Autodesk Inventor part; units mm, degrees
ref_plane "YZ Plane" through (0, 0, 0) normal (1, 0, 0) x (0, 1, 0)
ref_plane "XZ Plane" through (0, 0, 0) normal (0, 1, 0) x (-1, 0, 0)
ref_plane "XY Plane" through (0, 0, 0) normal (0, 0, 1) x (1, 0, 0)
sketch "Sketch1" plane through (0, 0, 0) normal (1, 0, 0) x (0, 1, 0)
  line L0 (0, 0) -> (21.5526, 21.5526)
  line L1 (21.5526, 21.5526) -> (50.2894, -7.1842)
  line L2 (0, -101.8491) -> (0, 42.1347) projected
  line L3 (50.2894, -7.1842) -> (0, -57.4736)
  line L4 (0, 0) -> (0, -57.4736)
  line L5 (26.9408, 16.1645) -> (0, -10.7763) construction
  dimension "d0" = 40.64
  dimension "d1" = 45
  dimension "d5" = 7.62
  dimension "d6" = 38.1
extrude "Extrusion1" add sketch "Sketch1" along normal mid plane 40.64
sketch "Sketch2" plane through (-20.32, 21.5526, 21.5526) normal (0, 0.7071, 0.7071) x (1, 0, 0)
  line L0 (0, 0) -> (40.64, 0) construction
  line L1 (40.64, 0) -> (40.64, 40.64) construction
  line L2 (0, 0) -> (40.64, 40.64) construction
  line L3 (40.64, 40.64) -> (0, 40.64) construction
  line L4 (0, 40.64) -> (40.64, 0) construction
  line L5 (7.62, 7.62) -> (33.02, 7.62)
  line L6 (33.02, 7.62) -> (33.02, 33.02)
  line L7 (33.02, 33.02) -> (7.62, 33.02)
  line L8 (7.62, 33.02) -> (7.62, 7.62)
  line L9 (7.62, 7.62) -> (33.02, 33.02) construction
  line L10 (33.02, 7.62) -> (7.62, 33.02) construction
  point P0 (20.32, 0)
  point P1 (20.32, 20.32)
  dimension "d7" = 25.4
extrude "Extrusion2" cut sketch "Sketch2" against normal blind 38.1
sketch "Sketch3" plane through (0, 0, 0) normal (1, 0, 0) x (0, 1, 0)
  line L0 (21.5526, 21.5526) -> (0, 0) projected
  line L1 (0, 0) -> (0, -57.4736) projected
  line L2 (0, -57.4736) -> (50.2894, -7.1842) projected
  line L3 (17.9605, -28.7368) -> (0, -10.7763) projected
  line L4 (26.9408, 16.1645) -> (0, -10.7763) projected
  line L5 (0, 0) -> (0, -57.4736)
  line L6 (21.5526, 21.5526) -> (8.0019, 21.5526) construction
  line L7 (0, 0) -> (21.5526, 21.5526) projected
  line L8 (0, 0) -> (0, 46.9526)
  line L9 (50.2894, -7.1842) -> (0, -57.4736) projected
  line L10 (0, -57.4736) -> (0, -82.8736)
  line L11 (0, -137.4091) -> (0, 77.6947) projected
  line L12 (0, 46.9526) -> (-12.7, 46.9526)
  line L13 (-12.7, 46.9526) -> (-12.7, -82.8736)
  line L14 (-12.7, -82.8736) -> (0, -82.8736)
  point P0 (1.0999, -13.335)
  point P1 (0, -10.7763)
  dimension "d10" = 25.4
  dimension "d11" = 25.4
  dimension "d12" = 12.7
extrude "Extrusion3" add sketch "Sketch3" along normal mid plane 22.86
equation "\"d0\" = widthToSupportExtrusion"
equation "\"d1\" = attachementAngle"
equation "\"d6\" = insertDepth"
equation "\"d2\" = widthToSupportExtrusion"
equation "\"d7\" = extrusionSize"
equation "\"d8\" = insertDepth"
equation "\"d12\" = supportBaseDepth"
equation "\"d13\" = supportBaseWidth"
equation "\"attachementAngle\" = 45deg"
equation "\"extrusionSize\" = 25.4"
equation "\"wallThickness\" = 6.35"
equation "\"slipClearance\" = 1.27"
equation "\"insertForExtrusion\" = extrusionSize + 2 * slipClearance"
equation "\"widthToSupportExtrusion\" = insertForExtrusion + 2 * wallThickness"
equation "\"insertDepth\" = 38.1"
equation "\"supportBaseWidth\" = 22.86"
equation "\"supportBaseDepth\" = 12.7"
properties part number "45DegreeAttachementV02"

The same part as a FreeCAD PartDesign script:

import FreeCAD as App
import Part
import Sketcher

V = App.Vector
Q = App.Units.Quantity

doc = App.newDocument("Part")
params = doc.addObject("Spreadsheet::Sheet", "Params")
for row, (alias, value) in enumerate([
    ("sketch1_length", "1.6 in"),
    ("sketch1_length2", "1.2 in"),
    ("pad1_length", "1.6 in"),
    ("sketch2_width", "1 in"),
    ("pocket1_length", "1.5 in"),
    ("sketch3_width", "0.5 in"),
    ("pad2_length", "0.9 in"),
], start=1):
    params.set(f"A{row}", alias)
    params.set(f"B{row}", "=" + value)
    params.setAlias(f"B{row}", alias)

body = doc.addObject("PartDesign::Body", "Body")

sketch1 = doc.addObject("Sketcher::SketchObject", "Sketch")
body.addObject(sketch1)
sketch1.AttachmentSupport = (doc.YZ_Plane, [""])
sketch1.MapMode = "FlatFace"
sketch1.addGeometry([
    Part.LineSegment(V(21.5526, 21.5526, 0), V(0, 0, 0)),
    Part.LineSegment(V(0, 0, 0), V(0, -57.4736, 0)),
    Part.LineSegment(V(0, -57.4736, 0), V(50.2894, -7.1842, 0)),
    Part.LineSegment(V(50.2894, -7.1842, 0), V(21.5526, 21.5526, 0)),
], False)
sketch1.addConstraint([
    Sketcher.Constraint("Coincident", 0, 2, 1, 1),
    Sketcher.Constraint("Coincident", 1, 2, 2, 1),
    Sketcher.Constraint("Coincident", 2, 2, 3, 1),
    Sketcher.Constraint("Coincident", 3, 2, 0, 1),
    Sketcher.Constraint("Vertical", 1),
    Sketcher.Constraint("Coincident", 0, 2, -1, 1),
    Sketcher.Constraint("Parallel", 0, 2),
    Sketcher.Constraint("Perpendicular", 2, 3),
    Sketcher.Constraint("Angle", 2, Q("45 deg")),
    Sketcher.Constraint("Distance", 3, Q("1.6 in")),
    Sketcher.Constraint("Distance", 0, Q("1.2 in")),
])
sketch1.setExpression("Constraints[9]", "Params.sketch1_length")
sketch1.setExpression("Constraints[10]", "Params.sketch1_length2")
pad1 = doc.addObject("PartDesign::Pad", "Pad")
body.addObject(pad1)
pad1.Profile = sketch1
pad1.setExpression("Length", "Params.pad1_length")
pad1.Midplane = True

sketch2 = doc.addObject("Sketcher::SketchObject", "Sketch001")
body.addObject(sketch2)
sketch2.Placement = App.Placement(V(-20.32, 21.5526, 21.5526), App.Rotation(V(1, 0, 0), V(0, 0.707106781, -0.707106781), V(0, 0.707106781, 0.707106781), "ZXY"))
sketch2.addGeometry([
    Part.LineSegment(V(7.62, 33.02, 0), V(7.62, 7.62, 0)),
    Part.LineSegment(V(7.62, 7.62, 0), V(33.02, 7.62, 0)),
    Part.LineSegment(V(33.02, 7.62, 0), V(33.02, 33.02, 0)),
    Part.LineSegment(V(33.02, 33.02, 0), V(7.62, 33.02, 0)),
], False)
sketch2.addConstraint([
    Sketcher.Constraint("Coincident", 0, 2, 1, 1),
    Sketcher.Constraint("Coincident", 1, 2, 2, 1),
    Sketcher.Constraint("Coincident", 2, 2, 3, 1),
    Sketcher.Constraint("Coincident", 3, 2, 0, 1),
    Sketcher.Constraint("Vertical", 0),
    Sketcher.Constraint("Horizontal", 1),
    Sketcher.Constraint("Vertical", 2),
    Sketcher.Constraint("Horizontal", 3),
    Sketcher.Constraint("Equal", 3, 0),
    Sketcher.Constraint("DistanceX", 1, 1, 1, 2, Q("1 in")),
    Sketcher.Constraint("DistanceX", -1, 1, 0, 2, Q("0.3 in")),
    Sketcher.Constraint("DistanceY", -1, 1, 0, 2, Q("0.3 in")),
])
sketch2.setExpression("Constraints[9]", "Params.sketch2_width")
pocket1 = doc.addObject("PartDesign::Pocket", "Pocket")
body.addObject(pocket1)
pocket1.Profile = sketch2
pocket1.setExpression("Length", "Params.pocket1_length")

sketch3 = doc.addObject("Sketcher::SketchObject", "Sketch002")
body.addObject(sketch3)
sketch3.AttachmentSupport = (doc.YZ_Plane, [""])
sketch3.MapMode = "FlatFace"
sketch3.addGeometry([
    Part.LineSegment(V(0, -82.8736, 0), V(0, 46.9526, 0)),
    Part.LineSegment(V(0, 46.9526, 0), V(-12.7, 46.9526, 0)),
    Part.LineSegment(V(-12.7, 46.9526, 0), V(-12.7, -82.8736, 0)),
    Part.LineSegment(V(-12.7, -82.8736, 0), V(0, -82.8736, 0)),
], False)
sketch3.addConstraint([
    Sketcher.Constraint("Coincident", 0, 2, 1, 1),
    Sketcher.Constraint("Coincident", 1, 2, 2, 1),
    Sketcher.Constraint("Coincident", 2, 2, 3, 1),
    Sketcher.Constraint("Coincident", 3, 2, 0, 1),
    Sketcher.Constraint("Vertical", 0),
    Sketcher.Constraint("Horizontal", 1),
    Sketcher.Constraint("Vertical", 2),
    Sketcher.Constraint("Horizontal", 3),
    Sketcher.Constraint("PointOnObject", 0, 2, -2),
    Sketcher.Constraint("DistanceX", 1, 2, 1, 1, Q("0.5 in")),
    Sketcher.Constraint("DistanceY", 0, 1, 0, 2, 129.8262),
    Sketcher.Constraint("DistanceY", -1, 1, 0, 2, 46.9526),
])
sketch3.setExpression("Constraints[9]", "Params.sketch3_width")
pad2 = doc.addObject("PartDesign::Pad", "Pad001")
body.addObject(pad2)
pad2.Profile = sketch3
pad2.setExpression("Length", "Params.pad2_length")
pad2.Midplane = True

doc.recompute()
